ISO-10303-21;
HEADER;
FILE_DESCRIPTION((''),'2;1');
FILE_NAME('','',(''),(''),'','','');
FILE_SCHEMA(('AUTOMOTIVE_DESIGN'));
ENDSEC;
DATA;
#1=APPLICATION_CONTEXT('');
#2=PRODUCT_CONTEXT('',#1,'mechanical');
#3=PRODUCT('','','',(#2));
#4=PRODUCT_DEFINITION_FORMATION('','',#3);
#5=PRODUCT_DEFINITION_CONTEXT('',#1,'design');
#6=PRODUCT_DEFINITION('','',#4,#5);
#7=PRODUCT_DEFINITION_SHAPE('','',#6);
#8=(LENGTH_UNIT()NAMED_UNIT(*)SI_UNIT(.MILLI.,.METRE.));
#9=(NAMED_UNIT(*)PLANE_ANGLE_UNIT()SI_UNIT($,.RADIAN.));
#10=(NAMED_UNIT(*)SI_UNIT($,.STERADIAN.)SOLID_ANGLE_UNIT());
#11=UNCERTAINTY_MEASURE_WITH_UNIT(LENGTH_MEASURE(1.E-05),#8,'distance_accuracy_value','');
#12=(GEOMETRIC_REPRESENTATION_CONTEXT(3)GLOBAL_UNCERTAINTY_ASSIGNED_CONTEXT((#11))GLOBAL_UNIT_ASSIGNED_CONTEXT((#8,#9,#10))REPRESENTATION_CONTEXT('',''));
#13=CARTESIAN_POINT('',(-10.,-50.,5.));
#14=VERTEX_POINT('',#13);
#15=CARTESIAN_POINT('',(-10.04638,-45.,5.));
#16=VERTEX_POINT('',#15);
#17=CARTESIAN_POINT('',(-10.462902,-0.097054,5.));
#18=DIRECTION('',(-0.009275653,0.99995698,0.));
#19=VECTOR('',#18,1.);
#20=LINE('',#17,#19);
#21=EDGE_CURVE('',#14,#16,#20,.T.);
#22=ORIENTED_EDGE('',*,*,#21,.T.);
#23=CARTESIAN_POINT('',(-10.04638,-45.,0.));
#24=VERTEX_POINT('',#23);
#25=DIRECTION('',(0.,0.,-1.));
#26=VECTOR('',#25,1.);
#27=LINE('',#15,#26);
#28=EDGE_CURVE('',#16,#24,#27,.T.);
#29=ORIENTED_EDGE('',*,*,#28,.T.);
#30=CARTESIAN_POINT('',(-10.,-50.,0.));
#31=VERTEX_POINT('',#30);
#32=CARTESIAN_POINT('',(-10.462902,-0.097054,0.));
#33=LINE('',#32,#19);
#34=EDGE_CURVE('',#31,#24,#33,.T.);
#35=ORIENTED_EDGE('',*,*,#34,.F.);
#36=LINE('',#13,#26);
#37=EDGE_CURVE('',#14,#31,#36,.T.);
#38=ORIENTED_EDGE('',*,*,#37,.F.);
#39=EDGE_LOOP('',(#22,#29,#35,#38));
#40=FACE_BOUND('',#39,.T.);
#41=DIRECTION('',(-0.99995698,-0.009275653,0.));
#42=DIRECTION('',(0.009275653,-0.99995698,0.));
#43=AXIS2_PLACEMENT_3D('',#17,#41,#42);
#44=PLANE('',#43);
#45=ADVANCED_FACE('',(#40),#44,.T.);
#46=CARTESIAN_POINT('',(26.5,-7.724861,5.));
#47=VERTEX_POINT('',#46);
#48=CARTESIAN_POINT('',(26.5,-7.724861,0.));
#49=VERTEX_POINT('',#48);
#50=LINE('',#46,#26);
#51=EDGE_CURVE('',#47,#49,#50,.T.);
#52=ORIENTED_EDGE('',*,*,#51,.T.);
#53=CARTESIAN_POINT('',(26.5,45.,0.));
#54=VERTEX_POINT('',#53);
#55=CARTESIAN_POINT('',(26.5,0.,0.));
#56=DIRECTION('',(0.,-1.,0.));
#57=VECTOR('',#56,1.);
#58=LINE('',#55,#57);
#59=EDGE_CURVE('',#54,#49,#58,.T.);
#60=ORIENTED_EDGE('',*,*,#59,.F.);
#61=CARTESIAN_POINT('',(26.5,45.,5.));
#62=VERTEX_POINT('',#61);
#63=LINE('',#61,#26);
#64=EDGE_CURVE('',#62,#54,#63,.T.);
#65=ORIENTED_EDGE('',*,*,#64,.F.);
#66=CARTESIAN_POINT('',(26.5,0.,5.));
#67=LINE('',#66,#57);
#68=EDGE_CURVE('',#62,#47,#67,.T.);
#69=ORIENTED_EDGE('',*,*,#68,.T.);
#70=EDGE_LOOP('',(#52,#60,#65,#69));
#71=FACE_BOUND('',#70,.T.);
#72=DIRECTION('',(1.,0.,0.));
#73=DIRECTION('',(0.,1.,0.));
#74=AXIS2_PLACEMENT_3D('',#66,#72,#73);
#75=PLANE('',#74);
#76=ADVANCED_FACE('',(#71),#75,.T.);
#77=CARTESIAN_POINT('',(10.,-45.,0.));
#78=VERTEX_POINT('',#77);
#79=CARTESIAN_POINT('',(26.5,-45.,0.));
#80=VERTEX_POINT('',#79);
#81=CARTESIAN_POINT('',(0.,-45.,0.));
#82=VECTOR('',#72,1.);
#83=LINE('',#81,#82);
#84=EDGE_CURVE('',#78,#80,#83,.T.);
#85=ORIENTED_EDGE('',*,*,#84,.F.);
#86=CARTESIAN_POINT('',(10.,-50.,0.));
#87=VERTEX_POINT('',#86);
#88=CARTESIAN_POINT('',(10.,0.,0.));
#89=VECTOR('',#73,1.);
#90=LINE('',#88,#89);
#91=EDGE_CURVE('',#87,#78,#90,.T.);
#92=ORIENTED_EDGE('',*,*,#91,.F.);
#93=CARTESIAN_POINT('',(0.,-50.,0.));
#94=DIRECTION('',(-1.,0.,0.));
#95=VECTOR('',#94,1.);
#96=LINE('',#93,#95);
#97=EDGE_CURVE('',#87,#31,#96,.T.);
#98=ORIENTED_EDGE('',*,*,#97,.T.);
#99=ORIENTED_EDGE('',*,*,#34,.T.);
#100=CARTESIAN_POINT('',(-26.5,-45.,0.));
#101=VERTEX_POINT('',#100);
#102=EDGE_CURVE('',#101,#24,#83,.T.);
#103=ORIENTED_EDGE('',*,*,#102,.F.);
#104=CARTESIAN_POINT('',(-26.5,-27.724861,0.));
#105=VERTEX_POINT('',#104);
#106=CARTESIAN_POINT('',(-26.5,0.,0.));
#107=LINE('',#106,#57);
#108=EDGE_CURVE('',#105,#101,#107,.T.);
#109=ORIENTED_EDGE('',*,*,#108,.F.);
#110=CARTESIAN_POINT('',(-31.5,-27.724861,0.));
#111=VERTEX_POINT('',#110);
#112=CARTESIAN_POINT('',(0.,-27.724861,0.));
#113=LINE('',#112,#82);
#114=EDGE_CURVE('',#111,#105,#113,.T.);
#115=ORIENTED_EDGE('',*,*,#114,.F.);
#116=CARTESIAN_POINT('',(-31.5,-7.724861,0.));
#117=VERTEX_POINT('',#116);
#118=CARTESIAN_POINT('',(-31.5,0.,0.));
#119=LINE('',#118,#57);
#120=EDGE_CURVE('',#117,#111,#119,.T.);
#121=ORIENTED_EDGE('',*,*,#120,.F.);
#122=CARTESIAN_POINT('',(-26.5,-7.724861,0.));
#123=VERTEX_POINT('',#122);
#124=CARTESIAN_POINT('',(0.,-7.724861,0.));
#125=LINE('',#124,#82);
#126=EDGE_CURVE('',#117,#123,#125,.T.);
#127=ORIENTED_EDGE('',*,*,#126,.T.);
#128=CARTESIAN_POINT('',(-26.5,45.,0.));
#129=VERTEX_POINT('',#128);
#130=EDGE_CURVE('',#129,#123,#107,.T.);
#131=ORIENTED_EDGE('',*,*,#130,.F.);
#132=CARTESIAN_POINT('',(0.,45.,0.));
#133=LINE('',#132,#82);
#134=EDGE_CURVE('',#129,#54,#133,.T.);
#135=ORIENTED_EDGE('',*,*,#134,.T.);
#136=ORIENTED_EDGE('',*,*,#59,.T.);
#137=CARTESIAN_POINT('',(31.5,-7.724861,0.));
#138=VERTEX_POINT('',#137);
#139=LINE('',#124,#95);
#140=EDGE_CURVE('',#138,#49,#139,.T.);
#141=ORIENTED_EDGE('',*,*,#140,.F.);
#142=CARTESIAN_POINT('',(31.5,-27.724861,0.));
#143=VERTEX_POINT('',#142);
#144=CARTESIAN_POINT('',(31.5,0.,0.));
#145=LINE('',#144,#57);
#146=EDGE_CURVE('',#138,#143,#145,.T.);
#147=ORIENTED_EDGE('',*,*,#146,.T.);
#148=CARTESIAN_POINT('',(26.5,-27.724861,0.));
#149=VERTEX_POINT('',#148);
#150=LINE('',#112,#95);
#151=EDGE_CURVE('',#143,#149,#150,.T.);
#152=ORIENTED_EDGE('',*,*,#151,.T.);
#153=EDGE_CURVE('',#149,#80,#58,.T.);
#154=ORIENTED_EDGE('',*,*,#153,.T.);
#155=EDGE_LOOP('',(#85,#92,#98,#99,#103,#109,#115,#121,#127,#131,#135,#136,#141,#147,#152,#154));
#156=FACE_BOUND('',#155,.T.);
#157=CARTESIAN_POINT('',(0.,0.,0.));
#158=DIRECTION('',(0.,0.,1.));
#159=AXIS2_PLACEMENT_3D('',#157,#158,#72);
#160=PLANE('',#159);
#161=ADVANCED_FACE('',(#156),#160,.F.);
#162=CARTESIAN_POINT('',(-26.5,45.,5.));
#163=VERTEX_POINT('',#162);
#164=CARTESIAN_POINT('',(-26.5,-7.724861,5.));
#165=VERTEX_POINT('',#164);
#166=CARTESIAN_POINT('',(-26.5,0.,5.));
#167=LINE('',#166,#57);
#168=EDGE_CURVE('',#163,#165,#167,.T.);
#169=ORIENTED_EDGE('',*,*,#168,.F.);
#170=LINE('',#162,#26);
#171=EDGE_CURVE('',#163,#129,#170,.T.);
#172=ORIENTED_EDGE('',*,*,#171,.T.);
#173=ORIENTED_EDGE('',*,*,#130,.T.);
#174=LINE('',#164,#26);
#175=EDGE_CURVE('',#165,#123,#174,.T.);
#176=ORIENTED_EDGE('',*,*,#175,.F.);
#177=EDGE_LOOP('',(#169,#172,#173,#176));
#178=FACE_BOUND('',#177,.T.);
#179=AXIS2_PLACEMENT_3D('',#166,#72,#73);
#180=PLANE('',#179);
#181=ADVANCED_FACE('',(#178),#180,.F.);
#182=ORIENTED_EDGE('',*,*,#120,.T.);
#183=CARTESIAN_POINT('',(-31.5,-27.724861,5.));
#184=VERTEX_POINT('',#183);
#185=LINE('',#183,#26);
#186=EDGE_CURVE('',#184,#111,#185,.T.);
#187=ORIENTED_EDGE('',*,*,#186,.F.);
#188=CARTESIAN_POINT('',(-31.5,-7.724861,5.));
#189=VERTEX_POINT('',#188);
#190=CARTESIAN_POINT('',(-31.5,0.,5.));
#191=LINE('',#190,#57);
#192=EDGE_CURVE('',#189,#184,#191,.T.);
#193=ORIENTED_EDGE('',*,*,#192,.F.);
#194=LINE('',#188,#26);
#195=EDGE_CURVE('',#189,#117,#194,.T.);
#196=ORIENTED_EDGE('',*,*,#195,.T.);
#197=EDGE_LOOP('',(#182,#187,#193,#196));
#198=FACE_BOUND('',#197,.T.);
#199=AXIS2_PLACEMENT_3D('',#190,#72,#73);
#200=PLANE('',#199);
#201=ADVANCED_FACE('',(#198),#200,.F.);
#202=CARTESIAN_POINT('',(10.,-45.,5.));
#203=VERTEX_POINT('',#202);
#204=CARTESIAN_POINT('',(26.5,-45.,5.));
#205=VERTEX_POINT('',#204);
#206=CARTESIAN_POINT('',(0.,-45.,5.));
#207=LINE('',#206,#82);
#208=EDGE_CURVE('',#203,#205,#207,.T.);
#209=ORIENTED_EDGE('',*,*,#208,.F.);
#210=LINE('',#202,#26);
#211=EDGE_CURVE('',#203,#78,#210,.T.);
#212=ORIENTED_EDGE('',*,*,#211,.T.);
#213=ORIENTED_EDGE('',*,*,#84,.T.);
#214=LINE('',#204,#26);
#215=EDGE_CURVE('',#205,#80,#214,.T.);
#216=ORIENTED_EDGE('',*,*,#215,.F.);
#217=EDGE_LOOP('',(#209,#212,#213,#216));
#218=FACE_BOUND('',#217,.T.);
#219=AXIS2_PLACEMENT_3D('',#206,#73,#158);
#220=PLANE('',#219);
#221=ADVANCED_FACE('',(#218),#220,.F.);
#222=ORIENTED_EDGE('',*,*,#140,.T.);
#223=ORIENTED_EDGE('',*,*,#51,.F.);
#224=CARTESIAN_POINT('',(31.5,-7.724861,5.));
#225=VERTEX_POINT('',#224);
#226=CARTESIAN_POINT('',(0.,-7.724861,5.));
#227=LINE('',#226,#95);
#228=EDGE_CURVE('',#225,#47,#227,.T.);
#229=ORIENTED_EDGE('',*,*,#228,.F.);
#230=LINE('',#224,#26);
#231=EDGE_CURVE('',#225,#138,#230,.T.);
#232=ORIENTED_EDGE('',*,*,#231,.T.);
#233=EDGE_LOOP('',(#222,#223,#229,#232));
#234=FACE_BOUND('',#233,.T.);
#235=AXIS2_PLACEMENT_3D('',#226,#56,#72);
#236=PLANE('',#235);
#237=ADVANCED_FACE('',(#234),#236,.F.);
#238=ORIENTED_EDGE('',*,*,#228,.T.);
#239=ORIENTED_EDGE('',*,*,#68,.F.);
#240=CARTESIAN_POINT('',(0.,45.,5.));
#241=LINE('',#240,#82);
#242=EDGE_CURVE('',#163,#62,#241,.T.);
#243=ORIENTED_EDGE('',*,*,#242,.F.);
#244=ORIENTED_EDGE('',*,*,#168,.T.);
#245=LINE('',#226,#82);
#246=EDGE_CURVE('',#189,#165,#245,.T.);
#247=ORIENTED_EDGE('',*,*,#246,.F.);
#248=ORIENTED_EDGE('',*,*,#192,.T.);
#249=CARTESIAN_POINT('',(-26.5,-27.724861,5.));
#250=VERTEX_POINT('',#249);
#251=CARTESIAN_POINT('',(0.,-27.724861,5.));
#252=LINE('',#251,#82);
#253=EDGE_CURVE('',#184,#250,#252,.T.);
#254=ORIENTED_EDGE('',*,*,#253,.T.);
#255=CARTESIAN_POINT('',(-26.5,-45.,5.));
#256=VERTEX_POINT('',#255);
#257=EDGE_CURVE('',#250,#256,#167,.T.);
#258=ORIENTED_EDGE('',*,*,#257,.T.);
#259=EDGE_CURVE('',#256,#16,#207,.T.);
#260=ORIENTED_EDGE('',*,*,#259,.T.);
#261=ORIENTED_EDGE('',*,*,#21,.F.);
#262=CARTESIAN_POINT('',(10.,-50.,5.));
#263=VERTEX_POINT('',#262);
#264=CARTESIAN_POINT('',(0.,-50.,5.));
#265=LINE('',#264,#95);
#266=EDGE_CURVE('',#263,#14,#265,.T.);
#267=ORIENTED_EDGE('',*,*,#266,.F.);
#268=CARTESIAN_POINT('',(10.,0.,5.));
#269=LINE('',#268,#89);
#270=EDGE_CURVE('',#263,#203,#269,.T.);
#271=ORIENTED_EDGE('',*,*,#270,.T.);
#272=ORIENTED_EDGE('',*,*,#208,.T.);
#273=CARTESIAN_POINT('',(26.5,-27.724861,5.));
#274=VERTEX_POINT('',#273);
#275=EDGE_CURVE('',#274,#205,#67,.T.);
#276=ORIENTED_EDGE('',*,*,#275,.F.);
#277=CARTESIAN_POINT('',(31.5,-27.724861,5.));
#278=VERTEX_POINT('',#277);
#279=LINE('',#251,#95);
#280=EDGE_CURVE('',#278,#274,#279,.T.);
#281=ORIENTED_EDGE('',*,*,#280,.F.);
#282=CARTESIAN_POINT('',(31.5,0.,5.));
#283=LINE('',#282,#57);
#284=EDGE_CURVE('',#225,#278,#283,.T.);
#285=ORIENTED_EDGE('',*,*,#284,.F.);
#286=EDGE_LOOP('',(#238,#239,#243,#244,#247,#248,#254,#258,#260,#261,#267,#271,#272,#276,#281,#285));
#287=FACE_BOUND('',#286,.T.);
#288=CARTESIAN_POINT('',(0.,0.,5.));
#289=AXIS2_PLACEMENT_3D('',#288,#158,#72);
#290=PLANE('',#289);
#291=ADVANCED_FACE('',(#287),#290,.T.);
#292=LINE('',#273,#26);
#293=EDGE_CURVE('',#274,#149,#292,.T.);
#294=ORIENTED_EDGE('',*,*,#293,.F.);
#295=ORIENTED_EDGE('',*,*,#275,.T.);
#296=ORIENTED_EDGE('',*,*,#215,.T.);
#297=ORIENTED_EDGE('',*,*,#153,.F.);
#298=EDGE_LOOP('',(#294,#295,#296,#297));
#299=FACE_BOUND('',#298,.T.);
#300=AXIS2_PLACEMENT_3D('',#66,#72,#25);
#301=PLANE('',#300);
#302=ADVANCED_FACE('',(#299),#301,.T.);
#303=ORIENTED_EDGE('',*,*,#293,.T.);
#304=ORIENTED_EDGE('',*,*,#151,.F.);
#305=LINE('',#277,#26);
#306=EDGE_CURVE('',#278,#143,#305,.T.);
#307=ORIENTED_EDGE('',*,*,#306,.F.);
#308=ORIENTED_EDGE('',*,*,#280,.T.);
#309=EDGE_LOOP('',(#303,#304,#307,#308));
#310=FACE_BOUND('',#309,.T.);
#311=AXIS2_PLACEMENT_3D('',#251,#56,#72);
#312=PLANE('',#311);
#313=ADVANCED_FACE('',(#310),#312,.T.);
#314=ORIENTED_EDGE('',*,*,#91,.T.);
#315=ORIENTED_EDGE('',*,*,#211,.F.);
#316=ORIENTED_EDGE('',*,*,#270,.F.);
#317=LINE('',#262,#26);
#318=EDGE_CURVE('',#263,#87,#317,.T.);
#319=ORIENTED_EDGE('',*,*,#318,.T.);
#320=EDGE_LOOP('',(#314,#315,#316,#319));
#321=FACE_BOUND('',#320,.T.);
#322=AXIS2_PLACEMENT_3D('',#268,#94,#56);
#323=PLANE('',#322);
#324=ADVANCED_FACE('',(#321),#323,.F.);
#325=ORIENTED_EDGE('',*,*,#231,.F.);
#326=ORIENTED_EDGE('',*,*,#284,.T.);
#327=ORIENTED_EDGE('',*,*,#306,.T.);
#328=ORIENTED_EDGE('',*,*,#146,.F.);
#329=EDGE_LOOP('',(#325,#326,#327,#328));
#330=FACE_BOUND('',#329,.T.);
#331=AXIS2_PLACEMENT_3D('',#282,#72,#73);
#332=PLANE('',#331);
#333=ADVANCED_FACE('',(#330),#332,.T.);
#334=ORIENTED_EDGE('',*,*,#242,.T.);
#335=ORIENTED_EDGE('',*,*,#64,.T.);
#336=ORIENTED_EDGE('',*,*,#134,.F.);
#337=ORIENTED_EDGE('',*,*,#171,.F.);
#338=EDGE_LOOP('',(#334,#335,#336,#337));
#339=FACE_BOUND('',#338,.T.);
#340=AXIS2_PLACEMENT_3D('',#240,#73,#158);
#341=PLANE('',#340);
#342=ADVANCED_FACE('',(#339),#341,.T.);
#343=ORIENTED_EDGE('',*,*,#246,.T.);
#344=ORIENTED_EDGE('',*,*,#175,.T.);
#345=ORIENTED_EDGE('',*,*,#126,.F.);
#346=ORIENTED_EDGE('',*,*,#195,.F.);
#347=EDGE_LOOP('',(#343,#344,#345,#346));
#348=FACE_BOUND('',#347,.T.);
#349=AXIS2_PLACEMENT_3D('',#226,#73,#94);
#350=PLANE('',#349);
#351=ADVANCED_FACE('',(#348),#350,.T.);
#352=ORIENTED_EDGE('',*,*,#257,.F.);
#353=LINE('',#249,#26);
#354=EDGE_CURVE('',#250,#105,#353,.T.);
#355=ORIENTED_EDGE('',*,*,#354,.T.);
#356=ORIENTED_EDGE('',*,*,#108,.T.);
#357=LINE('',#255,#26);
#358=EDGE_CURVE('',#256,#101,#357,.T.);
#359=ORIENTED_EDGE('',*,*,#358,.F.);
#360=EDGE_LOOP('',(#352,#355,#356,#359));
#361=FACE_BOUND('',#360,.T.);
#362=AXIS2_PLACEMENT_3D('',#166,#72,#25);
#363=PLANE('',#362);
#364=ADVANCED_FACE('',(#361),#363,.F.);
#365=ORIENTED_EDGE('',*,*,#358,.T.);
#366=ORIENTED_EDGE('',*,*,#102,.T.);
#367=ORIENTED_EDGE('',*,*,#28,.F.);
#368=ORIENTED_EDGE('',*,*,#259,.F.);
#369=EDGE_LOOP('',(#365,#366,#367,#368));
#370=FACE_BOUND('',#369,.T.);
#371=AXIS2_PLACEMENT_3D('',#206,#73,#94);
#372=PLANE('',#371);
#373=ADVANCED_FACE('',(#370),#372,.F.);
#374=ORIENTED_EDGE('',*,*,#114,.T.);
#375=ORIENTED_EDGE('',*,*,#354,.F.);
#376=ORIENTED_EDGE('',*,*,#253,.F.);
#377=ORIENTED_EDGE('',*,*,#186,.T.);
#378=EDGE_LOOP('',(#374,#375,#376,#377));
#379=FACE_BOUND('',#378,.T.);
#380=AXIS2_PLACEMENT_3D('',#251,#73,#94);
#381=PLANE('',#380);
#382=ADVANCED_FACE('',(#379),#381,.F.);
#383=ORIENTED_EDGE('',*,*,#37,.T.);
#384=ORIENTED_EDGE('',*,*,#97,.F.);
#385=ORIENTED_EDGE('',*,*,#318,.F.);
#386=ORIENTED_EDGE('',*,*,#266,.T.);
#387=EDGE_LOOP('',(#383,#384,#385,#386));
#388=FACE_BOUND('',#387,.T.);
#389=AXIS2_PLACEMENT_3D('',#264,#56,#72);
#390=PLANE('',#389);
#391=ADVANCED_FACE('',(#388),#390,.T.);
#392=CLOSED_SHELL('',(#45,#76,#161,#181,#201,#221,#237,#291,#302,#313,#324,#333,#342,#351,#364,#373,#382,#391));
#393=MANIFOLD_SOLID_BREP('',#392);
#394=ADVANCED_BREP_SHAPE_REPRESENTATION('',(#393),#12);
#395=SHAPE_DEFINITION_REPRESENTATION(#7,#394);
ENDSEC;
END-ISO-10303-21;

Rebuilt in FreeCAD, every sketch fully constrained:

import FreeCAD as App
import Part
import Sketcher

V = App.Vector

doc = App.newDocument("Part")
body = doc.addObject("PartDesign::Body", "Body")

# Sketch on XY plane
sketch1 = doc.addObject("Sketcher::SketchObject", "Sketch")
body.addObject(sketch1)
sketch1.AttachmentSupport = (doc.XY_Plane, [""])
sketch1.MapMode = "FlatFace"
sketch1.addGeometry([
    Part.LineSegment(V(26, -45, 0), V(26, -28, 0)),  # 0
    Part.LineSegment(V(26, -28, 0), V(32, -28, 0)),  # 1
    Part.LineSegment(V(32, -28, 0), V(32, -8, 0)),  # 2
    Part.LineSegment(V(32, -8, 0), V(26, -8, 0)),  # 3
    Part.LineSegment(V(26, -8, 0), V(26, 45, 0)),  # 4
    Part.LineSegment(V(26, 45, 0), V(-26, 45, 0)),  # 5
    Part.LineSegment(V(-26, 45, 0), V(-26, -8, 0)),  # 6
    Part.LineSegment(V(-26, -8, 0), V(-32, -8, 0)),  # 7
    Part.LineSegment(V(-32, -8, 0), V(-32, -28, 0)),  # 8
    Part.LineSegment(V(-32, -28, 0), V(-26, -28, 0)),  # 9
    Part.LineSegment(V(-26, -28, 0), V(-26, -45, 0)),  # 10
    Part.LineSegment(V(-26, -45, 0), V(-10, -45, 0)),  # 11
    Part.LineSegment(V(-10, -45, 0), V(-10, -50, 0)),  # 12
    Part.LineSegment(V(-10, -50, 0), V(10, -50, 0)),  # 13
    Part.LineSegment(V(10, -50, 0), V(10, -45, 0)),  # 14
    Part.LineSegment(V(10, -45, 0), V(26, -45, 0)),  # 15
], False)
sketch1.addConstraint([
    Sketcher.Constraint("Coincident", 0, 2, 1, 1),
    Sketcher.Constraint("Coincident", 1, 2, 2, 1),
    Sketcher.Constraint("Coincident", 2, 2, 3, 1),
    Sketcher.Constraint("Coincident", 3, 2, 4, 1),
    Sketcher.Constraint("Coincident", 4, 2, 5, 1),
    Sketcher.Constraint("Coincident", 5, 2, 6, 1),
    Sketcher.Constraint("Coincident", 6, 2, 7, 1),
    Sketcher.Constraint("Coincident", 7, 2, 8, 1),
    Sketcher.Constraint("Coincident", 8, 2, 9, 1),
    Sketcher.Constraint("Coincident", 9, 2, 10, 1),
    Sketcher.Constraint("Coincident", 10, 2, 11, 1),
    Sketcher.Constraint("Coincident", 11, 2, 12, 1),
    Sketcher.Constraint("Coincident", 12, 2, 13, 1),
    Sketcher.Constraint("Coincident", 13, 2, 14, 1),
    Sketcher.Constraint("Coincident", 14, 2, 15, 1),
    Sketcher.Constraint("Coincident", 15, 2, 0, 1),
    Sketcher.Constraint("Vertical", 0),
    Sketcher.Constraint("Horizontal", 1),
    Sketcher.Constraint("Vertical", 2),
    Sketcher.Constraint("Horizontal", 3),
    Sketcher.Constraint("Vertical", 4),
    Sketcher.Constraint("Horizontal", 5),
    Sketcher.Constraint("Vertical", 6),
    Sketcher.Constraint("Horizontal", 7),
    Sketcher.Constraint("Vertical", 8),
    Sketcher.Constraint("Horizontal", 9),
    Sketcher.Constraint("Vertical", 10),
    Sketcher.Constraint("Horizontal", 11),
    Sketcher.Constraint("Horizontal", 13),
    Sketcher.Constraint("Vertical", 14),
    Sketcher.Constraint("Horizontal", 15),
    Sketcher.Constraint("Symmetric", 4, 2, 10, 2, -1, 1),
    Sketcher.Constraint("Symmetric", 5, 2, 15, 2, -1, 1),
    Sketcher.Constraint("Symmetric", 3, 2, 6, 2, -2),
    Sketcher.Constraint("Symmetric", 1, 2, 8, 2, -2),
    Sketcher.Constraint("Equal", 13, 2),
    Sketcher.Constraint("Equal", 9, 14),
    Sketcher.Constraint("DistanceX", 1, 1, 1, 2, 5.0),
    Sketcher.Constraint("DistanceX", 5, 2, 5, 1, 53.0),
    Sketcher.Constraint("DistanceX", 13, 1, 13, 2, 20.0),
    Sketcher.Constraint("DistanceX", 15, 1, 15, 2, 16.5),
    Sketcher.Constraint("DistanceY", -1, 1, 4, 2, 45.0),
    Sketcher.Constraint("DistanceX", 11, 1, 11, 2, 16.45362),
    Sketcher.Constraint("DistanceY", 0, 1, 0, 2, 17.275139),
])
pad1 = doc.addObject("PartDesign::Pad", "Pad")
body.addObject(pad1)
pad1.Profile = sketch1
pad1.Length = 5

doc.recompute()
